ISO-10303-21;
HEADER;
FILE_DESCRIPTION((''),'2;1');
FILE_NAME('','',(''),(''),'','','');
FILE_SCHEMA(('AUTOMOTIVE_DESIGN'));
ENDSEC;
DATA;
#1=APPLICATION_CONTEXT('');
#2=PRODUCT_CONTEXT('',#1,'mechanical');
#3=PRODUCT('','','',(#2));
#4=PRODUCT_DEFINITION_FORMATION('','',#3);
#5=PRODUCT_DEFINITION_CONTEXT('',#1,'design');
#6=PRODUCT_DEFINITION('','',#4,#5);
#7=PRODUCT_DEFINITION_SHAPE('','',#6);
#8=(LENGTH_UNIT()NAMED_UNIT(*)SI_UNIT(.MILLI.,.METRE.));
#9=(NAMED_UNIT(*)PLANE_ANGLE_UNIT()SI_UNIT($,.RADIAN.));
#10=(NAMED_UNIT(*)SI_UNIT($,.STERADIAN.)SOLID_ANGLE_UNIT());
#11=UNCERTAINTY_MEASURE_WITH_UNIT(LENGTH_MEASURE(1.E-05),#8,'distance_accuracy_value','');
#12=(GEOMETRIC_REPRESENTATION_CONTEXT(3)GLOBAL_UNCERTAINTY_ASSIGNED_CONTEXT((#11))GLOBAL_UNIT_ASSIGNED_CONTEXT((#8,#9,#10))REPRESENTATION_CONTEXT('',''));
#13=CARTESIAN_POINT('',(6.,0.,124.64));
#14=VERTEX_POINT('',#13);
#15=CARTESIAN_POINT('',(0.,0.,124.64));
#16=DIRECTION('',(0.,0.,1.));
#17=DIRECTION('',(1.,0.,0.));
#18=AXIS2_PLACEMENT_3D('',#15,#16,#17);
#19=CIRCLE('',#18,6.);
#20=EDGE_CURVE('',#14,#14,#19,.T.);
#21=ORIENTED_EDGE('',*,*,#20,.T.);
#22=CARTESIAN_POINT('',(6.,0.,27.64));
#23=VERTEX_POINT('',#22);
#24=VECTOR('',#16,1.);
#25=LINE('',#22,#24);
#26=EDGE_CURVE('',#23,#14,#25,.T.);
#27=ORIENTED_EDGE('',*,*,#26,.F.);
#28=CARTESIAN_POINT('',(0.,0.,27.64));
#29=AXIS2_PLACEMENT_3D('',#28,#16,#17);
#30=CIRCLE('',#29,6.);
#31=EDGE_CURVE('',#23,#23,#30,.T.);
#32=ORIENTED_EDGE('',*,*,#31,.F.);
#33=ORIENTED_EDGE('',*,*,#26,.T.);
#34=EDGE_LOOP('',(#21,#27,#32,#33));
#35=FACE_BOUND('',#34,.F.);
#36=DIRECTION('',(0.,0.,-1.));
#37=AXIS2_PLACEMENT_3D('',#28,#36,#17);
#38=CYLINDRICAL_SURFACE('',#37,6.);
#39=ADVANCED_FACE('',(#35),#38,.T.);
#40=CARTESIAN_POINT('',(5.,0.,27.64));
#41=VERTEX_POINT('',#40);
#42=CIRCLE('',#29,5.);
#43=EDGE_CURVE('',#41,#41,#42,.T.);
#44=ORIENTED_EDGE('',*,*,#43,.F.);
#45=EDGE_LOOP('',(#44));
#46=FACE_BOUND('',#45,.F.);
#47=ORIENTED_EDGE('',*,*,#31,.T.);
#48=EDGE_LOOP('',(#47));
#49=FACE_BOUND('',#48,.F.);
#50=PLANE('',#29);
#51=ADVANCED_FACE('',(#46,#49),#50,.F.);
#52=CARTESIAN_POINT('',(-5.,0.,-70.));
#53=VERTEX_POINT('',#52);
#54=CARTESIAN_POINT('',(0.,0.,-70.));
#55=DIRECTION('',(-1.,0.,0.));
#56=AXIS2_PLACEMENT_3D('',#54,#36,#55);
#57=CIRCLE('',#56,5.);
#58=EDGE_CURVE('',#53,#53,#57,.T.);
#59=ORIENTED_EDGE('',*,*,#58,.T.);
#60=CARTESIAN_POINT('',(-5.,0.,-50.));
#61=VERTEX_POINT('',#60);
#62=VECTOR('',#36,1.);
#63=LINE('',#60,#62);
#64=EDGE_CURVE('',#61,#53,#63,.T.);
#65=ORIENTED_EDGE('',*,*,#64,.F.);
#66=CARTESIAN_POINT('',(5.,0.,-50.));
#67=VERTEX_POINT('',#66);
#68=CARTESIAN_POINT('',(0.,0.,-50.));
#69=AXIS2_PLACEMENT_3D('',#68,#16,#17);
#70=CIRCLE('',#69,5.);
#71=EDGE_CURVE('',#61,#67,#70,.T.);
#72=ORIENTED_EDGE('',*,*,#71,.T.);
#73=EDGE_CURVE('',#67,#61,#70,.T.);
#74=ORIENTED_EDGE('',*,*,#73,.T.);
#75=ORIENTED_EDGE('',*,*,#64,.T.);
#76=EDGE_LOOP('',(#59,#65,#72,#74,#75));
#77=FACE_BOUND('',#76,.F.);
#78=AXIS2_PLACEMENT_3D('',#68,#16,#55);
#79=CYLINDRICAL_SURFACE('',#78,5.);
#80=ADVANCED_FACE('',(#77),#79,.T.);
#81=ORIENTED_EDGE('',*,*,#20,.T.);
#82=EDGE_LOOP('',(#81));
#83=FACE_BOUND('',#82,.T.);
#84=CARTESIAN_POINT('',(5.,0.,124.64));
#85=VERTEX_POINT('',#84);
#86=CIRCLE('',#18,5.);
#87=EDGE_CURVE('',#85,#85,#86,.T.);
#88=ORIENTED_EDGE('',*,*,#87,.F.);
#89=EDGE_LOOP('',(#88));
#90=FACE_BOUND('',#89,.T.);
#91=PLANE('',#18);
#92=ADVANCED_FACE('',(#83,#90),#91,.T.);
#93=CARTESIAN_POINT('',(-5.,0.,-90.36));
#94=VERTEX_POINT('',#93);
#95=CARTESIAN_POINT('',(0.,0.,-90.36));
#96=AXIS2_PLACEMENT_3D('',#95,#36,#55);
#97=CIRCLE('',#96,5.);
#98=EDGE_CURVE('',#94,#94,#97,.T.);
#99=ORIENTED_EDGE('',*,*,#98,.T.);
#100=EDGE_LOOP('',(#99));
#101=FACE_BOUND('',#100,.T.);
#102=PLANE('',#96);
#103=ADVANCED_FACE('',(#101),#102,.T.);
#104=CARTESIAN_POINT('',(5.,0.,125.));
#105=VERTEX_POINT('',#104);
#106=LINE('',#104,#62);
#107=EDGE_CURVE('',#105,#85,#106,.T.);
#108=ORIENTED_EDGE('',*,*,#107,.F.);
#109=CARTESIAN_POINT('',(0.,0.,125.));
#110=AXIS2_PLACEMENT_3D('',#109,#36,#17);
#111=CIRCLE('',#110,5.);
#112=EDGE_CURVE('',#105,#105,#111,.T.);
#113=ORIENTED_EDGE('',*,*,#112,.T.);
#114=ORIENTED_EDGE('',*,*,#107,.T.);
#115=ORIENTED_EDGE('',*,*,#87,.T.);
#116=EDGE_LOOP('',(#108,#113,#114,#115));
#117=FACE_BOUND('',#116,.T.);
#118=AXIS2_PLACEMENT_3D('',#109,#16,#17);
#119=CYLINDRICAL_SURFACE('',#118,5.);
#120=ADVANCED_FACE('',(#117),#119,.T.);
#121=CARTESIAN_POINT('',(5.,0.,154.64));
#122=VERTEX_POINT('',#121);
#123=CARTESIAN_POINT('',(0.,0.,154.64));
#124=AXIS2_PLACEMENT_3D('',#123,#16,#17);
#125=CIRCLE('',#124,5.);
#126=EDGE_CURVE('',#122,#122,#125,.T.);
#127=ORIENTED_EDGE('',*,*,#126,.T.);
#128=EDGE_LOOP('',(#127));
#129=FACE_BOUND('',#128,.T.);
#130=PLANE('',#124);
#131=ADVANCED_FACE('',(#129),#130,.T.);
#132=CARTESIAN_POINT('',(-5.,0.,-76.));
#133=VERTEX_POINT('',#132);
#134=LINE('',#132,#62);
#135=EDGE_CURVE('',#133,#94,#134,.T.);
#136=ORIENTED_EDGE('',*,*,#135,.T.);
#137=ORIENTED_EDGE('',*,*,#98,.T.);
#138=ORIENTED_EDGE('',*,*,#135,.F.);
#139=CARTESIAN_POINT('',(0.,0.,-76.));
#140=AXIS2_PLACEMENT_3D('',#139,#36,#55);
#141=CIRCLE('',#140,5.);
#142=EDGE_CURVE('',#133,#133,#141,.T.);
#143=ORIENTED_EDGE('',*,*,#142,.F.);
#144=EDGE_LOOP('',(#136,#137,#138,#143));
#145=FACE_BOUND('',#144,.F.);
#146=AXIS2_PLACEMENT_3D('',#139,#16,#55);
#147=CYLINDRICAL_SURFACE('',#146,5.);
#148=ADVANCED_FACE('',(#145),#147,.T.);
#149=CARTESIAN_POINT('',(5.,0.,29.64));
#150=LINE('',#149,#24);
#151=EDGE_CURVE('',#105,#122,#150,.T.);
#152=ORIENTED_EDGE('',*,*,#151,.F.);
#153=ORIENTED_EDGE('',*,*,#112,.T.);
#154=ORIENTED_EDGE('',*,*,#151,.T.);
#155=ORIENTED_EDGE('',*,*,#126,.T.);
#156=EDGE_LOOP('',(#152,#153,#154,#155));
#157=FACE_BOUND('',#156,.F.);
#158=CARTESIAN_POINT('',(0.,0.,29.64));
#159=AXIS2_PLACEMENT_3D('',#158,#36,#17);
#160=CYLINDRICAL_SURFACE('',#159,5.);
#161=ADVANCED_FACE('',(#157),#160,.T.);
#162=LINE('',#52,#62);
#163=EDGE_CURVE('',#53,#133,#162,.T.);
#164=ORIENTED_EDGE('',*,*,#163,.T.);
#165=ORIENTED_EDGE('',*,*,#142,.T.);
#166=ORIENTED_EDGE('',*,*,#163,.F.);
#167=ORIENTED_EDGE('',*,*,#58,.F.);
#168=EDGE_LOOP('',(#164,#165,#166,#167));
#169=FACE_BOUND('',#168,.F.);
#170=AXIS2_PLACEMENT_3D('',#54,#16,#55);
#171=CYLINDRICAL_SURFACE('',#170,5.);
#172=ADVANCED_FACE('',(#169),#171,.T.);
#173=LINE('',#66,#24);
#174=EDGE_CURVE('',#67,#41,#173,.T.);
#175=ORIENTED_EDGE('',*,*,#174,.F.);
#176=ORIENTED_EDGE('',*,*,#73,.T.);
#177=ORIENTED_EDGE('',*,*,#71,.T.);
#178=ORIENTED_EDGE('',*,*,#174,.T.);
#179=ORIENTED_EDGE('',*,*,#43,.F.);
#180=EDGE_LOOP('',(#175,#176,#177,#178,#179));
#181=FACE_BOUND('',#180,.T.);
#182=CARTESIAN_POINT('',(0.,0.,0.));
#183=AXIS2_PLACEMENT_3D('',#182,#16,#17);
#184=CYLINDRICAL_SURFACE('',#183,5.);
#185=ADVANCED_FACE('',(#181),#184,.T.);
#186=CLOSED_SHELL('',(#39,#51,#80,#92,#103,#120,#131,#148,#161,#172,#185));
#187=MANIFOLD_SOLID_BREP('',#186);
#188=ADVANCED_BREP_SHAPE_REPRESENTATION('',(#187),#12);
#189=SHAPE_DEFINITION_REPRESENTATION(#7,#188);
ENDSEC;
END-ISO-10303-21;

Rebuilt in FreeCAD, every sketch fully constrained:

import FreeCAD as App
import Part
import Sketcher
from FreeCAD import Vector
Q = App.Units.Quantity

doc = App.newDocument("Part")
body = doc.addObject("PartDesign::Body", "Body")

sketch1 = body.newObject("Sketcher::SketchObject", "Sketch")
sketch1.AttachmentSupport = (doc.getObject("XY_Plane"), [""])
sketch1.MapMode = "FlatFace"
sketch1.addGeometry(Part.Circle(Vector(0, 0, 0), Vector(0, 0, 1), 5), False)
sketch1.addConstraint([
    Sketcher.Constraint("Coincident", 0, 3, -1, 1),
    Sketcher.Constraint("Diameter", 0, Q("10 mm")),
])
pad1 = body.newObject("PartDesign::Pad", "Pad")
pad1.Profile = sketch1
pad1.Length = 50
pad1.Reversed = True

sketch2 = body.newObject("Sketcher::SketchObject", "Sketch001")
sketch2.AttachmentSupport = (doc.getObject("XY_Plane"), [""])
sketch2.MapMode = "FlatFace"
sketch2.addGeometry(Part.Circle(Vector(0, 0, 0), Vector(0, 0, 1), 5), False)
sketch2.addConstraint([
    Sketcher.Constraint("Coincident", 0, 3, -1, 1),
    Sketcher.Constraint("Diameter", 0, Q("10 mm")),
])
pad2 = body.newObject("PartDesign::Pad", "Pad001")
pad2.Profile = sketch2
pad2.Length = 150

sketch3 = body.newObject("Sketcher::SketchObject", "Sketch002")
sketch3.AttachmentSupport = (doc.getObject("XY_Plane"), [""])
sketch3.MapMode = "FlatFace"
sketch3.AttachmentOffset = App.Placement(Vector(0, 0, 150), App.Rotation())
sketch3.addGeometry([
    Part.Circle(Vector(0, 0, 0), Vector(0, 0, 1), 5),
    Part.Circle(Vector(0, 0, 0), Vector(0, 0, 1), 4),
], False)
sketch3.addConstraint([
    Sketcher.Constraint("Coincident", 0, 3, -1, 1),
    Sketcher.Constraint("Coincident", 1, 3, -1, 1),
    Sketcher.Constraint("Diameter", 1, Q("8 mm")),
    Sketcher.Constraint("Diameter", 0, Q("10 mm")),
])
pocket1 = body.newObject("PartDesign::Pocket", "Pocket")
pocket1.Profile = sketch3
pocket1.Length = 30

sketch4 = body.newObject("Sketcher::SketchObject", "Sketch003")
sketch4.AttachmentSupport = (doc.getObject("XY_Plane"), [""])
sketch4.MapMode = "FlatFace"
sketch4.AttachmentOffset = App.Placement(Vector(0, 0, -50), App.Rotation())
sketch4.addGeometry(Part.Circle(Vector(0, 0, 0), Vector(0, 0, 1), 5), False)
sketch4.addConstraint([
    Sketcher.Constraint("Coincident", 0, 3, -1, 1),
    Sketcher.Constraint("Diameter", 0, Q("10 mm")),
])
pad3 = body.newObject("PartDesign::Pad", "Pad002")
pad3.Profile = sketch4
pad3.Length = 20
pad3.Reversed = True

sketch5 = body.newObject("Sketcher::SketchObject", "Sketch004")
sketch5.AttachmentSupport = (doc.getObject("XY_Plane"), [""])
sketch5.MapMode = "FlatFace"
sketch5.AttachmentOffset = App.Placement(Vector(0, 0, -70), App.Rotation())
sketch5.addGeometry(Part.Circle(Vector(0, 0, 0), Vector(0, 0, 1), 5), False)
sketch5.addConstraint([
    Sketcher.Constraint("Coincident", 0, 3, -1, 1),
    Sketcher.Constraint("Diameter", 0, Q("10 mm")),
])
pad4 = body.newObject("PartDesign::Pad", "Pad003")
pad4.Profile = sketch5
pad4.Length = 6
pad4.Reversed = True

sketch6 = body.newObject("Sketcher::SketchObject", "Sketch005")
sketch6.AttachmentSupport = (doc.getObject("XY_Plane"), [""])
sketch6.MapMode = "FlatFace"
sketch6.AttachmentOffset = App.Placement(Vector(0, 0, 150), App.Rotation())
sketch6.addGeometry(Part.Circle(Vector(0, 0, 0), Vector(0, 0, 1), 5), False)
sketch6.addConstraint([
    Sketcher.Constraint("Coincident", 0, 3, -1, 1),
    Sketcher.Constraint("Diameter", 0, Q("10 mm")),
])
pocket2 = body.newObject("PartDesign::Pocket", "Pocket001")
pocket2.Profile = sketch6
pocket2.Length = 122.36

sketch7 = body.newObject("Sketcher::SketchObject", "Sketch006")
sketch7.AttachmentSupport = (doc.getObject("XY_Plane"), [""])
sketch7.MapMode = "FlatFace"
sketch7.AttachmentOffset = App.Placement(Vector(0, 0, 27.64), App.Rotation())
sketch7.addGeometry(Part.Circle(Vector(0, 0, 0), Vector(0, 0, 1), 4.5), False)
sketch7.addConstraint([
    Sketcher.Constraint("Coincident", 0, 3, -1, 1),
    Sketcher.Constraint("Diameter", 0, Q("8.9288 mm")),
])
pad5 = body.newObject("PartDesign::Pad", "Pad004")
pad5.Profile = sketch7
pad5.Length = 2

sketch8 = body.newObject("Sketcher::SketchObject", "Sketch007")
sketch8.AttachmentSupport = (doc.getObject("XY_Plane"), [""])
sketch8.MapMode = "FlatFace"
sketch8.AttachmentOffset = App.Placement(Vector(0, 0, 29.64), App.Rotation())
sketch8.addGeometry(Part.Circle(Vector(0, 0, 0), Vector(0, 0, 1), 5), False)
sketch8.addConstraint([
    Sketcher.Constraint("Coincident", 0, 3, -1, 1),
    Sketcher.Constraint("Diameter", 0, Q("10 mm")),
])
pad6 = body.newObject("PartDesign::Pad", "Pad005")
pad6.Profile = sketch8
pad6.Length = 125.36

sketch9 = body.newObject("Sketcher::SketchObject", "Sketch008")
sketch9.AttachmentSupport = (doc.getObject("XY_Plane"), [""])
sketch9.MapMode = "FlatFace"
sketch9.AttachmentOffset = App.Placement(Vector(0, 0, -76), App.Rotation())
sketch9.addGeometry(Part.Circle(Vector(0, 0, 0), Vector(0, 0, 1), 5), False)
sketch9.addConstraint([
    Sketcher.Constraint("Coincident", 0, 3, -1, 1),
    Sketcher.Constraint("Diameter", 0, Q("10 mm")),
])
pad7 = body.newObject("PartDesign::Pad", "Pad006")
pad7.Profile = sketch9
pad7.Length = 15
pad7.Reversed = True

sketch10 = body.newObject("Sketcher::SketchObject", "Sketch009")
sketch10.AttachmentSupport = (doc.getObject("XY_Plane"), [""])
sketch10.MapMode = "FlatFace"
sketch10.AttachmentOffset = App.Placement(Vector(0, 0, 27.64), App.Rotation())
sketch10.addGeometry(Part.Circle(Vector(0, 0, 0), Vector(0, 0, 1), 6), False)
sketch10.addConstraint([
    Sketcher.Constraint("Coincident", 0, 3, -1, 1),
    Sketcher.Constraint("Diameter", 0, Q("12 mm")),
])
pad8 = body.newObject("PartDesign::Pad", "Pad007")
pad8.Profile = sketch10
pad8.Length = 97.36

sketch11 = body.newObject("Sketcher::SketchObject", "Sketch010")
sketch11.AttachmentSupport = (doc.getObject("XY_Plane"), [""])
sketch11.MapMode = "FlatFace"
sketch11.AttachmentOffset = App.Placement(Vector(0, 0, -91), App.Rotation())
sketch11.addGeometry(Part.Circle(Vector(0, 0, 0), Vector(0, 0, 1), 5), False)
sketch11.addConstraint([
    Sketcher.Constraint("Coincident", 0, 3, -1, 1),
    Sketcher.Constraint("Diameter", 0, Q("10 mm")),
])
pocket3 = body.newObject("PartDesign::Pocket", "Pocket002")
pocket3.Profile = sketch11
pocket3.Length = 0.6
pocket3.Reversed = True

sketch12 = body.newObject("Sketcher::SketchObject", "Sketch011")
sketch12.AttachmentSupport = (doc.getObject("XY_Plane"), [""])
sketch12.MapMode = "FlatFace"
sketch12.AttachmentOffset = App.Placement(Vector(0, 0, -90.4), App.Rotation())
sketch12.addGeometry(Part.Circle(Vector(0, 0, 0), Vector(0, 0, 1), 5), False)
sketch12.addConstraint([
    Sketcher.Constraint("Coincident", 0, 3, -1, 1),
    Sketcher.Constraint("Diameter", 0, Q("10 mm")),
])
pocket4 = body.newObject("PartDesign::Pocket", "Pocket003")
pocket4.Profile = sketch12
pocket4.Length = 0.04
pocket4.Reversed = True

sketch13 = body.newObject("Sketcher::SketchObject", "Sketch012")
sketch13.AttachmentSupport = (doc.getObject("XY_Plane"), [""])
sketch13.MapMode = "FlatFace"
sketch13.AttachmentOffset = App.Placement(Vector(0, 0, 125), App.Rotation())
sketch13.addGeometry([
    Part.Circle(Vector(0, 0, 0), Vector(0, 0, 1), 6),
    Part.Circle(Vector(0, 0, 0), Vector(0, 0, 1), 5),
], False)
sketch13.addConstraint([
    Sketcher.Constraint("Coincident", 0, 3, -1, 1),
    Sketcher.Constraint("Coincident", 1, 3, -1, 1),
    Sketcher.Constraint("Diameter", 0, Q("12 mm")),
    Sketcher.Constraint("Diameter", 1, Q("10 mm")),
])
pocket5 = body.newObject("PartDesign::Pocket", "Pocket004")
pocket5.Profile = sketch13
pocket5.Length = 0.36

sketch14 = body.newObject("Sketcher::SketchObject", "Sketch013")
sketch14.AttachmentSupport = (doc.getObject("XY_Plane"), [""])
sketch14.MapMode = "FlatFace"
sketch14.AttachmentOffset = App.Placement(Vector(0, 0, 155), App.Rotation())
sketch14.addGeometry(Part.Circle(Vector(0, 0, 0), Vector(0, 0, 1), 5), False)
sketch14.addConstraint([
    Sketcher.Constraint("Coincident", 0, 3, -1, 1),
    Sketcher.Constraint("Diameter", 0, Q("10 mm")),
])
pocket6 = body.newObject("PartDesign::Pocket", "Pocket005")
pocket6.Profile = sketch14
pocket6.Length = 0.36

doc.recompute()
